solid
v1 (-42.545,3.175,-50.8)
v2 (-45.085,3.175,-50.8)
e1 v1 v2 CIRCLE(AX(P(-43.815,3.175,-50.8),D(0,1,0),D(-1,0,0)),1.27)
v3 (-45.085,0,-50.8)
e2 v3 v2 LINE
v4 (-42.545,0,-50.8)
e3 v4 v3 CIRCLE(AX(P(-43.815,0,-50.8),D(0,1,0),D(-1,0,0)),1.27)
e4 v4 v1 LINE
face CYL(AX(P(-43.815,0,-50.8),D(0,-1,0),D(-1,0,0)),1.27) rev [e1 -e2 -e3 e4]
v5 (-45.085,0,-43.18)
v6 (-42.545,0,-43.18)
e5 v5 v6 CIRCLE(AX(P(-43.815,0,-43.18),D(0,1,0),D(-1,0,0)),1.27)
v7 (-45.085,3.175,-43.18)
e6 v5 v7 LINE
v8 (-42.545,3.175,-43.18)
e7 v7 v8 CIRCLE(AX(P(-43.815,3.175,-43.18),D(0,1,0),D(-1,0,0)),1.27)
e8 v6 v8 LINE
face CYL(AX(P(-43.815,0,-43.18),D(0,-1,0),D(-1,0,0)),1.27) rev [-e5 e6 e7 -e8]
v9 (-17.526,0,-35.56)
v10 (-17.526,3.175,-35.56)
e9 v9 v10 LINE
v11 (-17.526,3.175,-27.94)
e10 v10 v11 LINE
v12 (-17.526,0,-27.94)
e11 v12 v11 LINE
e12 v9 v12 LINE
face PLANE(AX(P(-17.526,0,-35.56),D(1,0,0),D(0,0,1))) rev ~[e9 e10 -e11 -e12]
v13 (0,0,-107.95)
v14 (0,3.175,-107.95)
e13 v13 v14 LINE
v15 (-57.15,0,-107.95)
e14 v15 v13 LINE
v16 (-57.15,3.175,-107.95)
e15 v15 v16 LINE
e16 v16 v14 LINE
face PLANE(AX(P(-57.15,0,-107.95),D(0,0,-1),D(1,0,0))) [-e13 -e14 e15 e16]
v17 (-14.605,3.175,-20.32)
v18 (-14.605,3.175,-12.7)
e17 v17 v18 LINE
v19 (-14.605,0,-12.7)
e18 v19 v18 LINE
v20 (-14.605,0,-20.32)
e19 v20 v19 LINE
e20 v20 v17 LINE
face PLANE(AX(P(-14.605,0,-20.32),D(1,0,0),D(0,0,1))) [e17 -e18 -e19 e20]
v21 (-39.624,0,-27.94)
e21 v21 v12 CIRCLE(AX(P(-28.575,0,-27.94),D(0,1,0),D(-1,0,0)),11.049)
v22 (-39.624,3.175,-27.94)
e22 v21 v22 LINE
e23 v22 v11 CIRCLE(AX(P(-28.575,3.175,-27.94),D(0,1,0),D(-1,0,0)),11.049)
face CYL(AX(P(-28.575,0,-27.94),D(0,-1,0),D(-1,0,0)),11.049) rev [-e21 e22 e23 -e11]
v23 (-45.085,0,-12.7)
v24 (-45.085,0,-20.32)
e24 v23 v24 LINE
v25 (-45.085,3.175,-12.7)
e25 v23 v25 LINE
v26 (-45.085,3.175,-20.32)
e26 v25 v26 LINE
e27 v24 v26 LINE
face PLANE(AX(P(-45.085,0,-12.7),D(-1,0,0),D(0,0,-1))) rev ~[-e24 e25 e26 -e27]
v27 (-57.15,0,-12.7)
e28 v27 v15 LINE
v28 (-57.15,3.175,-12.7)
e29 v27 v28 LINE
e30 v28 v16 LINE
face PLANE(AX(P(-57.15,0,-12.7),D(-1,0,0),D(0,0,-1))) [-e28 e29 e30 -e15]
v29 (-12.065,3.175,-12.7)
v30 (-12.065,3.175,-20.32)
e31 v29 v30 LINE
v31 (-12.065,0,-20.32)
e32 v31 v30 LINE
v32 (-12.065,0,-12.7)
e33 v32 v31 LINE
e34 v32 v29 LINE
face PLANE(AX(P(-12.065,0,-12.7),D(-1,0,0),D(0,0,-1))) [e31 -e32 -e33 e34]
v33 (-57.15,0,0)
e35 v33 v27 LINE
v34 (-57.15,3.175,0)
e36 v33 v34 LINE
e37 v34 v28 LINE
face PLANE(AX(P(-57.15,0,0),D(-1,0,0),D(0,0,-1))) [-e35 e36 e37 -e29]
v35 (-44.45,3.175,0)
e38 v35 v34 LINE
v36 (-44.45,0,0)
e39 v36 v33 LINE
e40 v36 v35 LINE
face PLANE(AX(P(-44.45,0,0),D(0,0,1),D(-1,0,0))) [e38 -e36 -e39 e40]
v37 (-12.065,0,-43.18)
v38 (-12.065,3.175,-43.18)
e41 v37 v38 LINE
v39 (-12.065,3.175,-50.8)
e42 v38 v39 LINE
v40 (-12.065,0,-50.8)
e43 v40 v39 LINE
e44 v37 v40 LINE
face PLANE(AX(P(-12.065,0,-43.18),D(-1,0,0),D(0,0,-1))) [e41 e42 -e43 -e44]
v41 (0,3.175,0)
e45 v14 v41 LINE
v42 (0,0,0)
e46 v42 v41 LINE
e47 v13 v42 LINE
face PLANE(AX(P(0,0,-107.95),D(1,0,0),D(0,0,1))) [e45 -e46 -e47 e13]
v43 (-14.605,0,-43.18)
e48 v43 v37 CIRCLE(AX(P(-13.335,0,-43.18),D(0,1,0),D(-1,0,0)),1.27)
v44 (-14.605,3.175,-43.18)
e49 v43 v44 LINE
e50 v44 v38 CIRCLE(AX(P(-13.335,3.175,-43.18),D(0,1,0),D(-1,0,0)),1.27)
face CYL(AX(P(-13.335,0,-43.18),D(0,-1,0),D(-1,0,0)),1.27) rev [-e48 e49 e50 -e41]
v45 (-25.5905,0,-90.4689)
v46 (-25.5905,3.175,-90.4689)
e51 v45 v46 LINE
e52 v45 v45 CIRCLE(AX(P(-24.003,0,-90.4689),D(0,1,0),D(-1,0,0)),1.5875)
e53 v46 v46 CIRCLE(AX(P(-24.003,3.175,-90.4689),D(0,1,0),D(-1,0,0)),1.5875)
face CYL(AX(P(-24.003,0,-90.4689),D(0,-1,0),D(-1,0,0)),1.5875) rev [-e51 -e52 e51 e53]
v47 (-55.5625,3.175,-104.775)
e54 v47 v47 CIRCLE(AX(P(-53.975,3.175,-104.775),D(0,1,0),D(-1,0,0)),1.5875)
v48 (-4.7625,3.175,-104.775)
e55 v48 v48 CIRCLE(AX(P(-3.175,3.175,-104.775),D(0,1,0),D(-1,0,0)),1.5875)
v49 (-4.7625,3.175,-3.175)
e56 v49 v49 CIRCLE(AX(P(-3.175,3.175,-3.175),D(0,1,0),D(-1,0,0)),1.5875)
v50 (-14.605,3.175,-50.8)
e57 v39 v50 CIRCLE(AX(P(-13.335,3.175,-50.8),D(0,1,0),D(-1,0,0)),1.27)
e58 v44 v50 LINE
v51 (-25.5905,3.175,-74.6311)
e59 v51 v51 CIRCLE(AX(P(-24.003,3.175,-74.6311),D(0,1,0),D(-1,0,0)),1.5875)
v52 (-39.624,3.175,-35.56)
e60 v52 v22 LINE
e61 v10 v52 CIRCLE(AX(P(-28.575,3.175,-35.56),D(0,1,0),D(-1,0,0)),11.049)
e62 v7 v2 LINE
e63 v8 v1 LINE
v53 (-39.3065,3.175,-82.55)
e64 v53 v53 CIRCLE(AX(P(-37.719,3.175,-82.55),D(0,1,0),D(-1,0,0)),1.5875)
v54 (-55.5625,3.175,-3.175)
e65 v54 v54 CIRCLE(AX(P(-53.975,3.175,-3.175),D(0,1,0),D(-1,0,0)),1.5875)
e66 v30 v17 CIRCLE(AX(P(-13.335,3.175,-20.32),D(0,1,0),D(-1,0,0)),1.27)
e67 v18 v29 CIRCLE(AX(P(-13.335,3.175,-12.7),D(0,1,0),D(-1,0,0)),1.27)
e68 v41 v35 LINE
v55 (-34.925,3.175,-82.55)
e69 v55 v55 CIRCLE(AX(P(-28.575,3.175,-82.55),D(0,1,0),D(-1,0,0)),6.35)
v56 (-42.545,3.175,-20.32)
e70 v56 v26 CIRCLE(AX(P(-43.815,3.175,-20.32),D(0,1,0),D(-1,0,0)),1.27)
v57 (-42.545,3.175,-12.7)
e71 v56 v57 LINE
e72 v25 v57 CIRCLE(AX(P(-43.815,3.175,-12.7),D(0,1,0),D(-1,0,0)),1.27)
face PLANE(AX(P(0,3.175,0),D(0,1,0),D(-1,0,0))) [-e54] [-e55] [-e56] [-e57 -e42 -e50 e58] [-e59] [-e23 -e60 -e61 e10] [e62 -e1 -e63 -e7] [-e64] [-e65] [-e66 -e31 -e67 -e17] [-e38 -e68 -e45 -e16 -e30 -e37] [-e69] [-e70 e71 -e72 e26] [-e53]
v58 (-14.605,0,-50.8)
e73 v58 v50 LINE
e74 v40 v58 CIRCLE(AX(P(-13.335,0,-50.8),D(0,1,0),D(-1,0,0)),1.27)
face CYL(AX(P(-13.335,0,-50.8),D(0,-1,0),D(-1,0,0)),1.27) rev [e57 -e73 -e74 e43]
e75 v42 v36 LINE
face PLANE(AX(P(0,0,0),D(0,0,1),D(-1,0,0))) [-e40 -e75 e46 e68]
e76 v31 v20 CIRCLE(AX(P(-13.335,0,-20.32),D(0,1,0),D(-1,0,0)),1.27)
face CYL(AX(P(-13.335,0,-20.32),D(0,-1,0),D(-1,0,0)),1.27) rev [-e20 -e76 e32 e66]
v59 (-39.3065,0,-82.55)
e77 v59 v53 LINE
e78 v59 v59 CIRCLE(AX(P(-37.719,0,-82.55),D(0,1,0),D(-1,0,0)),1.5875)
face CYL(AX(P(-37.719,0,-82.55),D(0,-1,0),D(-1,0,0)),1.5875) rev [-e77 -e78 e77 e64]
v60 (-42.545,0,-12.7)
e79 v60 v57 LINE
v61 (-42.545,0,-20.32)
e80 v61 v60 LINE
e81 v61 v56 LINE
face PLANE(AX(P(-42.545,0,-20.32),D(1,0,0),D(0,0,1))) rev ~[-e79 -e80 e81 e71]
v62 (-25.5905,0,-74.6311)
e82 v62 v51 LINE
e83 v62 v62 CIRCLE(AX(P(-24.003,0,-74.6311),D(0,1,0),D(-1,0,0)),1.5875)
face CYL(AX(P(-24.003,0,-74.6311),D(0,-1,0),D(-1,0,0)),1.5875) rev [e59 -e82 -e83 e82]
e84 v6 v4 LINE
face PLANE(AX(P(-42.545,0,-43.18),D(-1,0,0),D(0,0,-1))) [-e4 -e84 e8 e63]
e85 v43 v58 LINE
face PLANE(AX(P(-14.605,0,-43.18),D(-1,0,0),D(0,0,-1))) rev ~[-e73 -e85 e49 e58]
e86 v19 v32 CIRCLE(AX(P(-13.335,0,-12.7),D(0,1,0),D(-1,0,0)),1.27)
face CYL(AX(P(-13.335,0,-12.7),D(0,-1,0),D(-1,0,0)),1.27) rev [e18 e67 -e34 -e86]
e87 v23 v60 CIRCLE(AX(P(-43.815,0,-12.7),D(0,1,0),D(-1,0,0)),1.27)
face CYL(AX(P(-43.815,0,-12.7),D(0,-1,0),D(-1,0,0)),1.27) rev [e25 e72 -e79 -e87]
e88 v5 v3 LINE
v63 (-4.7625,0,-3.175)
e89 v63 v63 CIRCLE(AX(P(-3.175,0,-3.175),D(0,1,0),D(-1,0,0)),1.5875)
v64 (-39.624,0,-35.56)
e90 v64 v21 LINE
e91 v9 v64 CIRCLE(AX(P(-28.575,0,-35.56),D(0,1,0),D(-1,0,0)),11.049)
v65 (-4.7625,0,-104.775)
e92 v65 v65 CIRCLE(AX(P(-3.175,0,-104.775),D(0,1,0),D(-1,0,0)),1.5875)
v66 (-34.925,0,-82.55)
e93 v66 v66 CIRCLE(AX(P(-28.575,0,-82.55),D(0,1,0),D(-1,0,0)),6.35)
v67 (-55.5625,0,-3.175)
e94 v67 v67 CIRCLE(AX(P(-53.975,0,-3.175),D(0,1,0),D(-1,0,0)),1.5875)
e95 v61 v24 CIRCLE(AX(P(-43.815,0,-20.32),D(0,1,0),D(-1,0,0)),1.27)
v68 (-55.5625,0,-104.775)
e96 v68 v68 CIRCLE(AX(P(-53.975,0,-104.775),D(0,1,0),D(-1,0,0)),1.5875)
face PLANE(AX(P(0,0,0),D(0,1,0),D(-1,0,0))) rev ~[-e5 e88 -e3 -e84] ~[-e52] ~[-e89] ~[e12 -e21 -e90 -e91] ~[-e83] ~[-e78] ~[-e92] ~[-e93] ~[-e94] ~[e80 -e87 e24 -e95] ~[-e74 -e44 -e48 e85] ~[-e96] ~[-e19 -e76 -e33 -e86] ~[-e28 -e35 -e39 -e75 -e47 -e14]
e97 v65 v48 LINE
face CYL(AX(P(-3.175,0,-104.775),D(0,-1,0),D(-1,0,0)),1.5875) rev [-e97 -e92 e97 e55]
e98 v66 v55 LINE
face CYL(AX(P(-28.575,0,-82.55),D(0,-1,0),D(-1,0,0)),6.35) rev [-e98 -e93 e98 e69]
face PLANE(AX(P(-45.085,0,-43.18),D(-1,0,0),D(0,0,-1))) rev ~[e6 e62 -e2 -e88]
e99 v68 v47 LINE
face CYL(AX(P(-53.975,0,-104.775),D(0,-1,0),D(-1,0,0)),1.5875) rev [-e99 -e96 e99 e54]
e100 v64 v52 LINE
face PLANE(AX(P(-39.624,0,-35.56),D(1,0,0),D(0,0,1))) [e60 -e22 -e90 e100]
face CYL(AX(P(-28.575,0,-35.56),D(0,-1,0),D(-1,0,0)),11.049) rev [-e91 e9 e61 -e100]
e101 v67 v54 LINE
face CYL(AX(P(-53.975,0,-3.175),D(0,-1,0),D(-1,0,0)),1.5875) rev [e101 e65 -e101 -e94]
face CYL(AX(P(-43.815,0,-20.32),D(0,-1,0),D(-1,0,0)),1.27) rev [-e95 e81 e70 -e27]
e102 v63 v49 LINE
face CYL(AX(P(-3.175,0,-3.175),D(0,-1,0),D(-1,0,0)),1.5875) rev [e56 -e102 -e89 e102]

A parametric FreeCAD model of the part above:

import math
import FreeCAD as App
import Part
import Sketcher
Q = App.Units.Quantity

doc = App.newDocument("Part")
body = doc.addObject("PartDesign::Body", "Body")

# Sketch on XZ plane
sketch1 = body.newObject("Sketcher::SketchObject", "Sketch")
sketch1.AttachmentSupport = (doc.getObject("XZ_Plane"), [""])
sketch1.MapMode = "FlatFace"
sketch1.addGeometry(Part.LineSegment(App.Vector(-57.1, 0, 0), App.Vector(0, 0, 0)), False)
sketch1.addGeometry(Part.LineSegment(App.Vector(0, 0, 0), App.Vector(0, -108, 0)), False)
sketch1.addGeometry(Part.LineSegment(App.Vector(0, -108, 0), App.Vector(-57.1, -108, 0)), False)
sketch1.addGeometry(Part.LineSegment(App.Vector(-57.1, -108, 0), App.Vector(-57.1, 0, 0)), False)
sketch1.addGeometry(Part.Circle(App.Vector(-3.2, -104.8, 0), App.Vector(0, 0, 1), 1.6), False)
sketch1.addGeometry(Part.Circle(App.Vector(-24, -90.5, 0), App.Vector(0, 0, 1), 1.6), False)
sketch1.addGeometry(Part.Circle(App.Vector(-24, -74.6, 0), App.Vector(0, 0, 1), 1.6), False)
sketch1.addGeometry(Part.Circle(App.Vector(-28.6, -82.5, 0), App.Vector(0, 0, 1), 6.3), False)
sketch1.addGeometry(Part.Circle(App.Vector(-37.7, -82.5, 0), App.Vector(0, 0, 1), 1.6), False)
sketch1.addGeometry(Part.Circle(App.Vector(-54, -104.8, 0), App.Vector(0, 0, 1), 1.6), False)
sketch1.addGeometry(Part.LineSegment(App.Vector(-14.6, -43.2, 0), App.Vector(-14.6, -50.8, 0)), False)
sketch1.addGeometry(Part.ArcOfCircle(Part.Circle(App.Vector(-13.3, -50.8, 0), App.Vector(0, 0, 1), 1.3), math.radians(180), math.radians(360)), False)
sketch1.addGeometry(Part.LineSegment(App.Vector(-12.1, -50.8, 0), App.Vector(-12.1, -43.2, 0)), False)
sketch1.addGeometry(Part.ArcOfCircle(Part.Circle(App.Vector(-13.3, -43.2, 0), App.Vector(0, 0, 1), 1.3), math.radians(0), math.radians(180)), False)
sketch1.addGeometry(Part.LineSegment(App.Vector(-14.6, -12.7, 0), App.Vector(-14.6, -20.3, 0)), False)
sketch1.addGeometry(Part.ArcOfCircle(Part.Circle(App.Vector(-13.3, -20.3, 0), App.Vector(0, 0, 1), 1.3), math.radians(180), math.radians(360)), False)
sketch1.addGeometry(Part.LineSegment(App.Vector(-12.1, -20.3, 0), App.Vector(-12.1, -12.7, 0)), False)
sketch1.addGeometry(Part.ArcOfCircle(Part.Circle(App.Vector(-13.3, -12.7, 0), App.Vector(0, 0, 1), 1.3), math.radians(0), math.radians(180)), False)
sketch1.addGeometry(Part.Circle(App.Vector(-3.2, -3.2, 0), App.Vector(0, 0, 1), 1.6), False)
sketch1.addGeometry(Part.ArcOfCircle(Part.Circle(App.Vector(-28.6, -35.6, 0), App.Vector(0, 0, 1), 11), math.radians(180), math.radians(360)), False)
sketch1.addGeometry(Part.LineSegment(App.Vector(-17.5, -35.6, 0), App.Vector(-17.5, -27.9, 0)), False)
sketch1.addGeometry(Part.ArcOfCircle(Part.Circle(App.Vector(-28.6, -27.9, 0), App.Vector(0, 0, 1), 11), math.radians(0), math.radians(180)), False)
sketch1.addGeometry(Part.LineSegment(App.Vector(-39.6, -27.9, 0), App.Vector(-39.6, -35.6, 0)), False)
sketch1.addGeometry(Part.LineSegment(App.Vector(-45.1, -43.2, 0), App.Vector(-45.1, -50.8, 0)), False)
sketch1.addGeometry(Part.ArcOfCircle(Part.Circle(App.Vector(-43.8, -50.8, 0), App.Vector(0, 0, 1), 1.3), math.radians(180), math.radians(360)), False)
sketch1.addGeometry(Part.LineSegment(App.Vector(-42.5, -50.8, 0), App.Vector(-42.5, -43.2, 0)), False)
sketch1.addGeometry(Part.ArcOfCircle(Part.Circle(App.Vector(-43.8, -43.2, 0), App.Vector(0, 0, 1), 1.3), math.radians(0), math.radians(180)), False)
sketch1.addGeometry(Part.LineSegment(App.Vector(-45.1, -12.7, 0), App.Vector(-45.1, -20.3, 0)), False)
sketch1.addGeometry(Part.ArcOfCircle(Part.Circle(App.Vector(-43.8, -20.3, 0), App.Vector(0, 0, 1), 1.3), math.radians(180), math.radians(360)), False)
sketch1.addGeometry(Part.LineSegment(App.Vector(-42.5, -20.3, 0), App.Vector(-42.5, -12.7, 0)), False)
sketch1.addGeometry(Part.ArcOfCircle(Part.Circle(App.Vector(-43.8, -12.7, 0), App.Vector(0, 0, 1), 1.3), math.radians(0), math.radians(180)), False)
sketch1.addGeometry(Part.Circle(App.Vector(-54, -3.2, 0), App.Vector(0, 0, 1), 1.6), False)
sketch1.addConstraint(Sketcher.Constraint("Coincident", 0, 2, 1, 1))
sketch1.addConstraint(Sketcher.Constraint("Coincident", 1, 2, 2, 1))
sketch1.addConstraint(Sketcher.Constraint("Coincident", 2, 2, 3, 1))
sketch1.addConstraint(Sketcher.Constraint("Coincident", 3, 2, 0, 1))
sketch1.addConstraint(Sketcher.Constraint("Tangent", 10, 2, 11, 1))
sketch1.addConstraint(Sketcher.Constraint("Tangent", 11, 2, 12, 1))
sketch1.addConstraint(Sketcher.Constraint("Tangent", 12, 2, 13, 1))
sketch1.addConstraint(Sketcher.Constraint("Tangent", 13, 2, 10, 1))
sketch1.addConstraint(Sketcher.Constraint("Tangent", 14, 2, 15, 1))
sketch1.addConstraint(Sketcher.Constraint("Tangent", 15, 2, 16, 1))
sketch1.addConstraint(Sketcher.Constraint("Tangent", 16, 2, 17, 1))
sketch1.addConstraint(Sketcher.Constraint("Tangent", 17, 2, 14, 1))
sketch1.addConstraint(Sketcher.Constraint("Tangent", 19, 2, 20, 1))
sketch1.addConstraint(Sketcher.Constraint("Tangent", 20, 2, 21, 1))
sketch1.addConstraint(Sketcher.Constraint("Tangent", 21, 2, 22, 1))
sketch1.addConstraint(Sketcher.Constraint("Tangent", 22, 2, 19, 1))
sketch1.addConstraint(Sketcher.Constraint("Tangent", 23, 2, 24, 1))
sketch1.addConstraint(Sketcher.Constraint("Tangent", 24, 2, 25, 1))
sketch1.addConstraint(Sketcher.Constraint("Tangent", 25, 2, 26, 1))
sketch1.addConstraint(Sketcher.Constraint("Tangent", 26, 2, 23, 1))
sketch1.addConstraint(Sketcher.Constraint("Tangent", 27, 2, 28, 1))
sketch1.addConstraint(Sketcher.Constraint("Tangent", 28, 2, 29, 1))
sketch1.addConstraint(Sketcher.Constraint("Tangent", 29, 2, 30, 1))
sketch1.addConstraint(Sketcher.Constraint("Tangent", 30, 2, 27, 1))
sketch1.addConstraint(Sketcher.Constraint("Horizontal", 0))
sketch1.addConstraint(Sketcher.Constraint("Vertical", 1))
sketch1.addConstraint(Sketcher.Constraint("Horizontal", 2))
sketch1.addConstraint(Sketcher.Constraint("Vertical", 3))
sketch1.addConstraint(Sketcher.Constraint("Vertical", 10))
sketch1.addConstraint(Sketcher.Constraint("Vertical", 12))
sketch1.addConstraint(Sketcher.Constraint("Vertical", 14))
sketch1.addConstraint(Sketcher.Constraint("Vertical", 16))
sketch1.addConstraint(Sketcher.Constraint("Vertical", 20))
sketch1.addConstraint(Sketcher.Constraint("Vertical", 22))
sketch1.addConstraint(Sketcher.Constraint("Vertical", 23))
sketch1.addConstraint(Sketcher.Constraint("Vertical", 25))
sketch1.addConstraint(Sketcher.Constraint("Vertical", 27))
sketch1.addConstraint(Sketcher.Constraint("Vertical", 29))
sketch1.addConstraint(Sketcher.Constraint("Coincident", 0, 2, -1, 1))
sketch1.addConstraint(Sketcher.Constraint("Equal", 4, 5))
sketch1.addConstraint(Sketcher.Constraint("Equal", 5, 6))
sketch1.addConstraint(Sketcher.Constraint("Equal", 6, 8))
sketch1.addConstraint(Sketcher.Constraint("Equal", 8, 9))
sketch1.addConstraint(Sketcher.Constraint("Equal", 13, 15))
sketch1.addConstraint(Sketcher.Constraint("Equal", 9, 18))
sketch1.addConstraint(Sketcher.Constraint("Equal", 17, 24))
sketch1.addConstraint(Sketcher.Constraint("Equal", 26, 28))
sketch1.addConstraint(Sketcher.Constraint("Equal", 18, 31))
sketch1.addConstraint(Sketcher.Constraint("Horizontal", 7, 3, 8, 3))
sketch1.addConstraint(Sketcher.Constraint("Horizontal", 4, 3, 9, 3))
sketch1.addConstraint(Sketcher.Constraint("Horizontal", 11, 3, 24, 3))
sketch1.addConstraint(Sketcher.Constraint("Horizontal", 13, 3, 26, 3))
sketch1.addConstraint(Sketcher.Constraint("Horizontal", 15, 3, 28, 3))
sketch1.addConstraint(Sketcher.Constraint("Horizontal", 17, 3, 30, 3))
sketch1.addConstraint(Sketcher.Constraint("Horizontal", 18, 3, 31, 3))
sketch1.addConstraint(Sketcher.Constraint("Vertical", 5, 3, 6, 3))
sketch1.addConstraint(Sketcher.Constraint("Vertical", 13, 3, 15, 3))
sketch1.addConstraint(Sketcher.Constraint("Vertical", 4, 3, 18, 3))
sketch1.addConstraint(Sketcher.Constraint("Vertical", 7, 3, 19, 3))
sketch1.addConstraint(Sketcher.Constraint("Vertical", 26, 3, 28, 3))
sketch1.addConstraint(Sketcher.Constraint("Vertical", 9, 3, 31, 3))
sketch1.addConstraint(Sketcher.Constraint("Equal", 12, 14))
sketch1.addConstraint(Sketcher.Constraint("Equal", 16, 20))
sketch1.addConstraint(Sketcher.Constraint("Diameter", 7, Q("0.5 in")))
sketch1.addConstraint(Sketcher.Constraint("Radius", 11, Q("0.05 in")))
sketch1.addConstraint(Sketcher.Constraint("Diameter", 4, Q("0.125 in")))
sketch1.addConstraint(Sketcher.Constraint("DistanceY", 10, 2, 10, 1, Q("0.3 in")))
sketch1.addConstraint(Sketcher.Constraint("Radius", 19, Q("0.435 in")))
sketch1.addConstraint(Sketcher.Constraint("DistanceX", 7, 3, 4, 3, Q("1 in")))
sketch1.addConstraint(Sketcher.Constraint("DistanceX", 9, 3, 7, 3, Q("1 in")))
sketch1.addConstraint(Sketcher.Constraint("DistanceY", 1, 2, 7, 3, Q("1 in")))
sketch1.addConstraint(Sketcher.Constraint("DistanceX", 0, 1, 0, 2, Q("2.25 in")))
sketch1.addConstraint(Sketcher.Constraint("DistanceY", 1, 2, 1, 1, Q("4.25 in")))
sketch1.addConstraint(Sketcher.Constraint("DistanceY", 17, 3, -1, 1, Q("0.5 in")))
sketch1.addConstraint(Sketcher.Constraint("DistanceY", 19, 3, -1, 1, Q("1.4 in")))
sketch1.addConstraint(Sketcher.Constraint("DistanceX", 7, 3, 11, 3, Q("0.6 in")))
sketch1.addConstraint(Sketcher.Constraint("DistanceY", 13, 3, 19, 3, Q("0.3 in")))
sketch1.addConstraint(Sketcher.Constraint("DistanceX", 24, 3, 19, 3, Q("0.6 in")))
sketch1.addConstraint(Sketcher.Constraint("DistanceX", 8, 3, 7, 3, Q("0.36 in")))
sketch1.addConstraint(Sketcher.Constraint("DistanceX", 4, 3, -1, 1, Q("0.125 in")))
sketch1.addConstraint(Sketcher.Constraint("DistanceY", 18, 3, -1, 1, Q("0.125 in")))
sketch1.addConstraint(Sketcher.Constraint("DistanceY", 1, 2, 4, 3, Q("0.125 in")))
sketch1.addConstraint(Sketcher.Constraint("DistanceX", 5, 3, 4, 3, Q("0.82 in")))
sketch1.addConstraint(Sketcher.Constraint("DistanceY", 5, 3, -1, 1, Q("90.469 mm")))
sketch1.addConstraint(Sketcher.Constraint("DistanceY", 6, 3, -1, 1, Q("74.631 mm")))
pad1 = body.newObject("PartDesign::Pad", "Pad")
pad1.Profile = sketch1
pad1.Length = Q("0.125 in")
pad1.Reversed = True

doc.recompute()
